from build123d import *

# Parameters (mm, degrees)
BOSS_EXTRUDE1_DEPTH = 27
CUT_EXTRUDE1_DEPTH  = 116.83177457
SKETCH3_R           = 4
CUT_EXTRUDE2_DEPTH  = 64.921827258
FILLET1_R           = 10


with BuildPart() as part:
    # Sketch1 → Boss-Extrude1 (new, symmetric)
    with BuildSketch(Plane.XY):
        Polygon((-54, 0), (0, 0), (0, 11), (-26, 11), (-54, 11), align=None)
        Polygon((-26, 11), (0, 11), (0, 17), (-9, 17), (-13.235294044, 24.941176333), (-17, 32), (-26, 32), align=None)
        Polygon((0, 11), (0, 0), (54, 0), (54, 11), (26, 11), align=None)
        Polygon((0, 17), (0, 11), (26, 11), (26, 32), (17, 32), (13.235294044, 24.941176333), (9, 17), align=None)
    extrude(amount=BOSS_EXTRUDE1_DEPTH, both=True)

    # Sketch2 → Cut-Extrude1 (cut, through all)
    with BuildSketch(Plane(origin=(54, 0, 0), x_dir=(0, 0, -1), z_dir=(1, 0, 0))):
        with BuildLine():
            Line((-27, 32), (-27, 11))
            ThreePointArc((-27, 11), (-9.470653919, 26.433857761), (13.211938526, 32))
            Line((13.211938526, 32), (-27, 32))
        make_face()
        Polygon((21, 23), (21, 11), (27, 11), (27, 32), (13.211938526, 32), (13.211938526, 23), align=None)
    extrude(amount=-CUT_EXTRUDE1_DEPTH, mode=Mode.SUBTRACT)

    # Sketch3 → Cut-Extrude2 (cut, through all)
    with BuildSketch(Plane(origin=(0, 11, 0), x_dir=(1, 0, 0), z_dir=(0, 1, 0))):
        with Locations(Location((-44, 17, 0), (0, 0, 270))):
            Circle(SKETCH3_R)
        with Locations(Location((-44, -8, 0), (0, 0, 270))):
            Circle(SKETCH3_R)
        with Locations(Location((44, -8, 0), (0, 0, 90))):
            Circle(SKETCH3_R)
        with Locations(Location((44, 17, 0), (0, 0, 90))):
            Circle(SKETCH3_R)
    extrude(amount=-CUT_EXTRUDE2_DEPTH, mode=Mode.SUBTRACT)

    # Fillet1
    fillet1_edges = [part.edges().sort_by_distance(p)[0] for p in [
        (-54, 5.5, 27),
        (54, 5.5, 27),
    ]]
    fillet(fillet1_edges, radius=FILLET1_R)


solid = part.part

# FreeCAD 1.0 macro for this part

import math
import FreeCAD as App
import Part
import Sketcher
from FreeCAD import Vector
Q = App.Units.Quantity


def edges_at(feature, points):
    """Names of the edges that pass closest to the given points."""
    edges = feature.Shape.Edges
    near = lambda p: min(range(len(edges)), key=lambda i: edges[i].distToShape(Part.Vertex(*p))[0])
    return sorted({f"Edge{near(p) + 1}" for p in points})

doc = App.newDocument("Part")
body = doc.addObject("PartDesign::Body", "Body")

# Sketch on XY plane
sketch1 = doc.addObject("Sketcher::SketchObject", "Sketch")
body.addObject(sketch1)
sketch1.AttachmentSupport = (doc.XY_Plane, [""])
sketch1.MapMode = "FlatFace"
sketch1.addGeometry([
    Part.LineSegment(Vector(-54, 0, 0), Vector(54, 0, 0)),  # 0
    Part.LineSegment(Vector(54, 0, 0), Vector(54, 11, 0)),  # 1
    Part.LineSegment(Vector(54, 11, 0), Vector(26, 11, 0)),  # 2
    Part.LineSegment(Vector(26, 11, 0), Vector(26, 32, 0)),  # 3
    Part.LineSegment(Vector(26, 32, 0), Vector(17, 32, 0)),  # 4
    Part.LineSegment(Vector(17, 32, 0), Vector(13, 25, 0)),  # 5
    Part.LineSegment(Vector(13, 25, 0), Vector(9, 17, 0)),  # 6
    Part.LineSegment(Vector(9, 17, 0), Vector(-9, 17, 0)),  # 7
    Part.LineSegment(Vector(-9, 17, 0), Vector(-13, 25, 0)),  # 8
    Part.LineSegment(Vector(-13, 25, 0), Vector(-17, 32, 0)),  # 9
    Part.LineSegment(Vector(-17, 32, 0), Vector(-26, 32, 0)),  # 10
    Part.LineSegment(Vector(-26, 32, 0), Vector(-26, 11, 0)),  # 11
    Part.LineSegment(Vector(-26, 11, 0), Vector(-54, 11, 0)),  # 12
    Part.LineSegment(Vector(-54, 11, 0), Vector(-54, 0, 0)),  # 13
], False)
sketch1.addConstraint([
    Sketcher.Constraint("Coincident", 0, 2, 1, 1),
    Sketcher.Constraint("Coincident", 1, 2, 2, 1),
    Sketcher.Constraint("Coincident", 2, 2, 3, 1),
    Sketcher.Constraint("Coincident", 3, 2, 4, 1),
    Sketcher.Constraint("Coincident", 4, 2, 5, 1),
    Sketcher.Constraint("Coincident", 5, 2, 6, 1),
    Sketcher.Constraint("Coincident", 6, 2, 7, 1),
    Sketcher.Constraint("Coincident", 7, 2, 8, 1),
    Sketcher.Constraint("Coincident", 8, 2, 9, 1),
    Sketcher.Constraint("Coincident", 9, 2, 10, 1),
    Sketcher.Constraint("Coincident", 10, 2, 11, 1),
    Sketcher.Constraint("Coincident", 11, 2, 12, 1),
    Sketcher.Constraint("Coincident", 12, 2, 13, 1),
    Sketcher.Constraint("Coincident", 13, 2, 0, 1),
    Sketcher.Constraint("Horizontal", 0),
    Sketcher.Constraint("Vertical", 1),
    Sketcher.Constraint("Horizontal", 2),
    Sketcher.Constraint("Vertical", 3),
    Sketcher.Constraint("Horizontal", 4),
    Sketcher.Constraint("Horizontal", 7),
    Sketcher.Constraint("Horizontal", 10),
    Sketcher.Constraint("Vertical", 11),
    Sketcher.Constraint("Horizontal", 12),
    Sketcher.Constraint("Vertical", 13),
    Sketcher.Constraint("Symmetric", 0, 2, 13, 2, -1, 1),
    Sketcher.Constraint("Symmetric", 5, 2, 8, 2, -2),
    Sketcher.Constraint("Symmetric", 4, 2, 9, 2, -2),
    Sketcher.Constraint("Symmetric", 2, 2, 11, 2, -2),
    Sketcher.Constraint("Parallel", 5, 6),
    Sketcher.Constraint("Parallel", 8, 9),
    Sketcher.Constraint("DistanceX", 0, 1, 0, 2, Q("108 mm")),
    Sketcher.Constraint("DistanceX", 2, 2, 2, 1, Q("28 mm")),
    Sketcher.Constraint("DistanceX", 4, 2, 4, 1, Q("9 mm")),
    Sketcher.Constraint("DistanceX", 7, 2, 7, 1, Q("18 mm")),
    Sketcher.Constraint("DistanceY", 1, 1, 1, 2, Q("11 mm")),
    Sketcher.Constraint("DistanceY", 3, 1, 3, 2, Q("21 mm")),
    Sketcher.Constraint("Distance", 5, Q("8 mm")),
    Sketcher.Constraint("Distance", 6, Q("9 mm")),
])
pad1 = doc.addObject("PartDesign::Pad", "Pad")
body.addObject(pad1)
pad1.Profile = sketch1
pad1.Length = 54
pad1.Midplane = True

# Sketch on YZ plane
sketch2 = doc.addObject("Sketcher::SketchObject", "Sketch001")
body.addObject(sketch2)
sketch2.AttachmentSupport = (doc.YZ_Plane, [""])
sketch2.MapMode = "FlatFace"
sketch2.AttachmentOffset = App.Placement(Vector(0, 0, 54), App.Rotation())
sketch2.addGeometry([
    Part.LineSegment(Vector(32, 27, 0), Vector(11, 27, 0)),  # 0
    Part.ArcOfCircle(Part.Circle(Vector(-17, -13, 0), Vector(0, 0, 1), 49), math.radians(0), math.radians(55)),  # 1
    Part.LineSegment(Vector(32, -13, 0), Vector(32, 27, 0)),  # 2
    Part.LineSegment(Vector(23, -21, 0), Vector(11, -21, 0)),  # 3
    Part.LineSegment(Vector(11, -21, 0), Vector(11, -27, 0)),  # 4
    Part.LineSegment(Vector(11, -27, 0), Vector(32, -27, 0)),  # 5
    Part.LineSegment(Vector(32, -27, 0), Vector(32, -13, 0)),  # 6
    Part.LineSegment(Vector(32, -13, 0), Vector(23, -13, 0)),  # 7
    Part.LineSegment(Vector(23, -13, 0), Vector(23, -21, 0)),  # 8
], False)
sketch2.addConstraint([
    Sketcher.Constraint("Coincident", 0, 2, 1, 2),
    Sketcher.Constraint("Tangent", 1, 1, 2, 1),
    Sketcher.Constraint("Coincident", 2, 2, 0, 1),
    Sketcher.Constraint("Coincident", 3, 2, 4, 1),
    Sketcher.Constraint("Coincident", 4, 2, 5, 1),
    Sketcher.Constraint("Coincident", 5, 2, 6, 1),
    Sketcher.Constraint("Coincident", 6, 2, 7, 1),
    Sketcher.Constraint("Coincident", 7, 2, 8, 1),
    Sketcher.Constraint("Coincident", 8, 2, 3, 1),
    Sketcher.Constraint("Horizontal", 0),
    Sketcher.Constraint("Vertical", 2),
    Sketcher.Constraint("Horizontal", 3),
    Sketcher.Constraint("Vertical", 4),
    Sketcher.Constraint("Horizontal", 5),
    Sketcher.Constraint("Vertical", 6),
    Sketcher.Constraint("Horizontal", 7),
    Sketcher.Constraint("Vertical", 8),
    Sketcher.Constraint("Coincident", 6, 2, 1, 1),
    Sketcher.Constraint("Symmetric", 0, 2, 4, 2, -1),
    Sketcher.Constraint("Radius", 1, Q("49 mm")),
    Sketcher.Constraint("DistanceX", 0, 2, 0, 1, Q("21 mm")),
    Sketcher.Constraint("DistanceX", 3, 2, 3, 1, Q("12 mm")),
    Sketcher.Constraint("DistanceY", 4, 2, 4, 1, Q("6 mm")),
    Sketcher.Constraint("DistanceX", 1, 3, -1, 1, Q("17 mm")),
    Sketcher.Constraint("DistanceY", -1, 1, 0, 2, Q("27 mm")),
])
pocket1 = doc.addObject("PartDesign::Pocket", "Pocket")
body.addObject(pocket1)
pocket1.Profile = sketch2
pocket1.Type = "ThroughAll"

# Sketch on XZ plane
sketch3 = doc.addObject("Sketcher::SketchObject", "Sketch002")
body.addObject(sketch3)
sketch3.AttachmentSupport = (doc.XZ_Plane, [""])
sketch3.MapMode = "FlatFace"
sketch3.AttachmentOffset = App.Placement(Vector(0, 0, -11), App.Rotation())
sketch3.addGeometry([
    Part.Circle(Vector(-44, -17, 0), Vector(0, 0, 1), 4),
    Part.Circle(Vector(-44, 8, 0), Vector(0, 0, 1), 4),
    Part.Circle(Vector(44, 8, 0), Vector(0, 0, 1), 4),
    Part.Circle(Vector(44, -17, 0), Vector(0, 0, 1), 4),
], False)
sketch3.addConstraint([
    Sketcher.Constraint("Equal", 0, 1),
    Sketcher.Constraint("Equal", 1, 2),
    Sketcher.Constraint("Equal", 2, 3),
    Sketcher.Constraint("Symmetric", 1, 3, 2, 3, -2),
    Sketcher.Constraint("Symmetric", 0, 3, 3, 3, -2),
    Sketcher.Constraint("Vertical", 0, 3, 1, 3),
    Sketcher.Constraint("Diameter", 0, Q("8 mm")),
    Sketcher.Constraint("DistanceX", 0, 3, -1, 1, Q("44 mm")),
    Sketcher.Constraint("DistanceY", 0, 3, -1, 1, Q("17 mm")),
    Sketcher.Constraint("DistanceY", -1, 1, 1, 3, Q("8 mm")),
])
pocket2 = doc.addObject("PartDesign::Pocket", "Pocket001")
body.addObject(pocket2)
pocket2.Profile = sketch3
pocket2.Type = "ThroughAll"
pocket2.Reversed = True
doc.recompute()

fillet = doc.addObject("PartDesign::Fillet", "Fillet")
body.addObject(fillet)
fillet.Base = (pocket2, edges_at(pocket2, [(-54, 5.5, 27), (54, 5.5, 27)]))
fillet.Radius = 10

doc.recompute()
